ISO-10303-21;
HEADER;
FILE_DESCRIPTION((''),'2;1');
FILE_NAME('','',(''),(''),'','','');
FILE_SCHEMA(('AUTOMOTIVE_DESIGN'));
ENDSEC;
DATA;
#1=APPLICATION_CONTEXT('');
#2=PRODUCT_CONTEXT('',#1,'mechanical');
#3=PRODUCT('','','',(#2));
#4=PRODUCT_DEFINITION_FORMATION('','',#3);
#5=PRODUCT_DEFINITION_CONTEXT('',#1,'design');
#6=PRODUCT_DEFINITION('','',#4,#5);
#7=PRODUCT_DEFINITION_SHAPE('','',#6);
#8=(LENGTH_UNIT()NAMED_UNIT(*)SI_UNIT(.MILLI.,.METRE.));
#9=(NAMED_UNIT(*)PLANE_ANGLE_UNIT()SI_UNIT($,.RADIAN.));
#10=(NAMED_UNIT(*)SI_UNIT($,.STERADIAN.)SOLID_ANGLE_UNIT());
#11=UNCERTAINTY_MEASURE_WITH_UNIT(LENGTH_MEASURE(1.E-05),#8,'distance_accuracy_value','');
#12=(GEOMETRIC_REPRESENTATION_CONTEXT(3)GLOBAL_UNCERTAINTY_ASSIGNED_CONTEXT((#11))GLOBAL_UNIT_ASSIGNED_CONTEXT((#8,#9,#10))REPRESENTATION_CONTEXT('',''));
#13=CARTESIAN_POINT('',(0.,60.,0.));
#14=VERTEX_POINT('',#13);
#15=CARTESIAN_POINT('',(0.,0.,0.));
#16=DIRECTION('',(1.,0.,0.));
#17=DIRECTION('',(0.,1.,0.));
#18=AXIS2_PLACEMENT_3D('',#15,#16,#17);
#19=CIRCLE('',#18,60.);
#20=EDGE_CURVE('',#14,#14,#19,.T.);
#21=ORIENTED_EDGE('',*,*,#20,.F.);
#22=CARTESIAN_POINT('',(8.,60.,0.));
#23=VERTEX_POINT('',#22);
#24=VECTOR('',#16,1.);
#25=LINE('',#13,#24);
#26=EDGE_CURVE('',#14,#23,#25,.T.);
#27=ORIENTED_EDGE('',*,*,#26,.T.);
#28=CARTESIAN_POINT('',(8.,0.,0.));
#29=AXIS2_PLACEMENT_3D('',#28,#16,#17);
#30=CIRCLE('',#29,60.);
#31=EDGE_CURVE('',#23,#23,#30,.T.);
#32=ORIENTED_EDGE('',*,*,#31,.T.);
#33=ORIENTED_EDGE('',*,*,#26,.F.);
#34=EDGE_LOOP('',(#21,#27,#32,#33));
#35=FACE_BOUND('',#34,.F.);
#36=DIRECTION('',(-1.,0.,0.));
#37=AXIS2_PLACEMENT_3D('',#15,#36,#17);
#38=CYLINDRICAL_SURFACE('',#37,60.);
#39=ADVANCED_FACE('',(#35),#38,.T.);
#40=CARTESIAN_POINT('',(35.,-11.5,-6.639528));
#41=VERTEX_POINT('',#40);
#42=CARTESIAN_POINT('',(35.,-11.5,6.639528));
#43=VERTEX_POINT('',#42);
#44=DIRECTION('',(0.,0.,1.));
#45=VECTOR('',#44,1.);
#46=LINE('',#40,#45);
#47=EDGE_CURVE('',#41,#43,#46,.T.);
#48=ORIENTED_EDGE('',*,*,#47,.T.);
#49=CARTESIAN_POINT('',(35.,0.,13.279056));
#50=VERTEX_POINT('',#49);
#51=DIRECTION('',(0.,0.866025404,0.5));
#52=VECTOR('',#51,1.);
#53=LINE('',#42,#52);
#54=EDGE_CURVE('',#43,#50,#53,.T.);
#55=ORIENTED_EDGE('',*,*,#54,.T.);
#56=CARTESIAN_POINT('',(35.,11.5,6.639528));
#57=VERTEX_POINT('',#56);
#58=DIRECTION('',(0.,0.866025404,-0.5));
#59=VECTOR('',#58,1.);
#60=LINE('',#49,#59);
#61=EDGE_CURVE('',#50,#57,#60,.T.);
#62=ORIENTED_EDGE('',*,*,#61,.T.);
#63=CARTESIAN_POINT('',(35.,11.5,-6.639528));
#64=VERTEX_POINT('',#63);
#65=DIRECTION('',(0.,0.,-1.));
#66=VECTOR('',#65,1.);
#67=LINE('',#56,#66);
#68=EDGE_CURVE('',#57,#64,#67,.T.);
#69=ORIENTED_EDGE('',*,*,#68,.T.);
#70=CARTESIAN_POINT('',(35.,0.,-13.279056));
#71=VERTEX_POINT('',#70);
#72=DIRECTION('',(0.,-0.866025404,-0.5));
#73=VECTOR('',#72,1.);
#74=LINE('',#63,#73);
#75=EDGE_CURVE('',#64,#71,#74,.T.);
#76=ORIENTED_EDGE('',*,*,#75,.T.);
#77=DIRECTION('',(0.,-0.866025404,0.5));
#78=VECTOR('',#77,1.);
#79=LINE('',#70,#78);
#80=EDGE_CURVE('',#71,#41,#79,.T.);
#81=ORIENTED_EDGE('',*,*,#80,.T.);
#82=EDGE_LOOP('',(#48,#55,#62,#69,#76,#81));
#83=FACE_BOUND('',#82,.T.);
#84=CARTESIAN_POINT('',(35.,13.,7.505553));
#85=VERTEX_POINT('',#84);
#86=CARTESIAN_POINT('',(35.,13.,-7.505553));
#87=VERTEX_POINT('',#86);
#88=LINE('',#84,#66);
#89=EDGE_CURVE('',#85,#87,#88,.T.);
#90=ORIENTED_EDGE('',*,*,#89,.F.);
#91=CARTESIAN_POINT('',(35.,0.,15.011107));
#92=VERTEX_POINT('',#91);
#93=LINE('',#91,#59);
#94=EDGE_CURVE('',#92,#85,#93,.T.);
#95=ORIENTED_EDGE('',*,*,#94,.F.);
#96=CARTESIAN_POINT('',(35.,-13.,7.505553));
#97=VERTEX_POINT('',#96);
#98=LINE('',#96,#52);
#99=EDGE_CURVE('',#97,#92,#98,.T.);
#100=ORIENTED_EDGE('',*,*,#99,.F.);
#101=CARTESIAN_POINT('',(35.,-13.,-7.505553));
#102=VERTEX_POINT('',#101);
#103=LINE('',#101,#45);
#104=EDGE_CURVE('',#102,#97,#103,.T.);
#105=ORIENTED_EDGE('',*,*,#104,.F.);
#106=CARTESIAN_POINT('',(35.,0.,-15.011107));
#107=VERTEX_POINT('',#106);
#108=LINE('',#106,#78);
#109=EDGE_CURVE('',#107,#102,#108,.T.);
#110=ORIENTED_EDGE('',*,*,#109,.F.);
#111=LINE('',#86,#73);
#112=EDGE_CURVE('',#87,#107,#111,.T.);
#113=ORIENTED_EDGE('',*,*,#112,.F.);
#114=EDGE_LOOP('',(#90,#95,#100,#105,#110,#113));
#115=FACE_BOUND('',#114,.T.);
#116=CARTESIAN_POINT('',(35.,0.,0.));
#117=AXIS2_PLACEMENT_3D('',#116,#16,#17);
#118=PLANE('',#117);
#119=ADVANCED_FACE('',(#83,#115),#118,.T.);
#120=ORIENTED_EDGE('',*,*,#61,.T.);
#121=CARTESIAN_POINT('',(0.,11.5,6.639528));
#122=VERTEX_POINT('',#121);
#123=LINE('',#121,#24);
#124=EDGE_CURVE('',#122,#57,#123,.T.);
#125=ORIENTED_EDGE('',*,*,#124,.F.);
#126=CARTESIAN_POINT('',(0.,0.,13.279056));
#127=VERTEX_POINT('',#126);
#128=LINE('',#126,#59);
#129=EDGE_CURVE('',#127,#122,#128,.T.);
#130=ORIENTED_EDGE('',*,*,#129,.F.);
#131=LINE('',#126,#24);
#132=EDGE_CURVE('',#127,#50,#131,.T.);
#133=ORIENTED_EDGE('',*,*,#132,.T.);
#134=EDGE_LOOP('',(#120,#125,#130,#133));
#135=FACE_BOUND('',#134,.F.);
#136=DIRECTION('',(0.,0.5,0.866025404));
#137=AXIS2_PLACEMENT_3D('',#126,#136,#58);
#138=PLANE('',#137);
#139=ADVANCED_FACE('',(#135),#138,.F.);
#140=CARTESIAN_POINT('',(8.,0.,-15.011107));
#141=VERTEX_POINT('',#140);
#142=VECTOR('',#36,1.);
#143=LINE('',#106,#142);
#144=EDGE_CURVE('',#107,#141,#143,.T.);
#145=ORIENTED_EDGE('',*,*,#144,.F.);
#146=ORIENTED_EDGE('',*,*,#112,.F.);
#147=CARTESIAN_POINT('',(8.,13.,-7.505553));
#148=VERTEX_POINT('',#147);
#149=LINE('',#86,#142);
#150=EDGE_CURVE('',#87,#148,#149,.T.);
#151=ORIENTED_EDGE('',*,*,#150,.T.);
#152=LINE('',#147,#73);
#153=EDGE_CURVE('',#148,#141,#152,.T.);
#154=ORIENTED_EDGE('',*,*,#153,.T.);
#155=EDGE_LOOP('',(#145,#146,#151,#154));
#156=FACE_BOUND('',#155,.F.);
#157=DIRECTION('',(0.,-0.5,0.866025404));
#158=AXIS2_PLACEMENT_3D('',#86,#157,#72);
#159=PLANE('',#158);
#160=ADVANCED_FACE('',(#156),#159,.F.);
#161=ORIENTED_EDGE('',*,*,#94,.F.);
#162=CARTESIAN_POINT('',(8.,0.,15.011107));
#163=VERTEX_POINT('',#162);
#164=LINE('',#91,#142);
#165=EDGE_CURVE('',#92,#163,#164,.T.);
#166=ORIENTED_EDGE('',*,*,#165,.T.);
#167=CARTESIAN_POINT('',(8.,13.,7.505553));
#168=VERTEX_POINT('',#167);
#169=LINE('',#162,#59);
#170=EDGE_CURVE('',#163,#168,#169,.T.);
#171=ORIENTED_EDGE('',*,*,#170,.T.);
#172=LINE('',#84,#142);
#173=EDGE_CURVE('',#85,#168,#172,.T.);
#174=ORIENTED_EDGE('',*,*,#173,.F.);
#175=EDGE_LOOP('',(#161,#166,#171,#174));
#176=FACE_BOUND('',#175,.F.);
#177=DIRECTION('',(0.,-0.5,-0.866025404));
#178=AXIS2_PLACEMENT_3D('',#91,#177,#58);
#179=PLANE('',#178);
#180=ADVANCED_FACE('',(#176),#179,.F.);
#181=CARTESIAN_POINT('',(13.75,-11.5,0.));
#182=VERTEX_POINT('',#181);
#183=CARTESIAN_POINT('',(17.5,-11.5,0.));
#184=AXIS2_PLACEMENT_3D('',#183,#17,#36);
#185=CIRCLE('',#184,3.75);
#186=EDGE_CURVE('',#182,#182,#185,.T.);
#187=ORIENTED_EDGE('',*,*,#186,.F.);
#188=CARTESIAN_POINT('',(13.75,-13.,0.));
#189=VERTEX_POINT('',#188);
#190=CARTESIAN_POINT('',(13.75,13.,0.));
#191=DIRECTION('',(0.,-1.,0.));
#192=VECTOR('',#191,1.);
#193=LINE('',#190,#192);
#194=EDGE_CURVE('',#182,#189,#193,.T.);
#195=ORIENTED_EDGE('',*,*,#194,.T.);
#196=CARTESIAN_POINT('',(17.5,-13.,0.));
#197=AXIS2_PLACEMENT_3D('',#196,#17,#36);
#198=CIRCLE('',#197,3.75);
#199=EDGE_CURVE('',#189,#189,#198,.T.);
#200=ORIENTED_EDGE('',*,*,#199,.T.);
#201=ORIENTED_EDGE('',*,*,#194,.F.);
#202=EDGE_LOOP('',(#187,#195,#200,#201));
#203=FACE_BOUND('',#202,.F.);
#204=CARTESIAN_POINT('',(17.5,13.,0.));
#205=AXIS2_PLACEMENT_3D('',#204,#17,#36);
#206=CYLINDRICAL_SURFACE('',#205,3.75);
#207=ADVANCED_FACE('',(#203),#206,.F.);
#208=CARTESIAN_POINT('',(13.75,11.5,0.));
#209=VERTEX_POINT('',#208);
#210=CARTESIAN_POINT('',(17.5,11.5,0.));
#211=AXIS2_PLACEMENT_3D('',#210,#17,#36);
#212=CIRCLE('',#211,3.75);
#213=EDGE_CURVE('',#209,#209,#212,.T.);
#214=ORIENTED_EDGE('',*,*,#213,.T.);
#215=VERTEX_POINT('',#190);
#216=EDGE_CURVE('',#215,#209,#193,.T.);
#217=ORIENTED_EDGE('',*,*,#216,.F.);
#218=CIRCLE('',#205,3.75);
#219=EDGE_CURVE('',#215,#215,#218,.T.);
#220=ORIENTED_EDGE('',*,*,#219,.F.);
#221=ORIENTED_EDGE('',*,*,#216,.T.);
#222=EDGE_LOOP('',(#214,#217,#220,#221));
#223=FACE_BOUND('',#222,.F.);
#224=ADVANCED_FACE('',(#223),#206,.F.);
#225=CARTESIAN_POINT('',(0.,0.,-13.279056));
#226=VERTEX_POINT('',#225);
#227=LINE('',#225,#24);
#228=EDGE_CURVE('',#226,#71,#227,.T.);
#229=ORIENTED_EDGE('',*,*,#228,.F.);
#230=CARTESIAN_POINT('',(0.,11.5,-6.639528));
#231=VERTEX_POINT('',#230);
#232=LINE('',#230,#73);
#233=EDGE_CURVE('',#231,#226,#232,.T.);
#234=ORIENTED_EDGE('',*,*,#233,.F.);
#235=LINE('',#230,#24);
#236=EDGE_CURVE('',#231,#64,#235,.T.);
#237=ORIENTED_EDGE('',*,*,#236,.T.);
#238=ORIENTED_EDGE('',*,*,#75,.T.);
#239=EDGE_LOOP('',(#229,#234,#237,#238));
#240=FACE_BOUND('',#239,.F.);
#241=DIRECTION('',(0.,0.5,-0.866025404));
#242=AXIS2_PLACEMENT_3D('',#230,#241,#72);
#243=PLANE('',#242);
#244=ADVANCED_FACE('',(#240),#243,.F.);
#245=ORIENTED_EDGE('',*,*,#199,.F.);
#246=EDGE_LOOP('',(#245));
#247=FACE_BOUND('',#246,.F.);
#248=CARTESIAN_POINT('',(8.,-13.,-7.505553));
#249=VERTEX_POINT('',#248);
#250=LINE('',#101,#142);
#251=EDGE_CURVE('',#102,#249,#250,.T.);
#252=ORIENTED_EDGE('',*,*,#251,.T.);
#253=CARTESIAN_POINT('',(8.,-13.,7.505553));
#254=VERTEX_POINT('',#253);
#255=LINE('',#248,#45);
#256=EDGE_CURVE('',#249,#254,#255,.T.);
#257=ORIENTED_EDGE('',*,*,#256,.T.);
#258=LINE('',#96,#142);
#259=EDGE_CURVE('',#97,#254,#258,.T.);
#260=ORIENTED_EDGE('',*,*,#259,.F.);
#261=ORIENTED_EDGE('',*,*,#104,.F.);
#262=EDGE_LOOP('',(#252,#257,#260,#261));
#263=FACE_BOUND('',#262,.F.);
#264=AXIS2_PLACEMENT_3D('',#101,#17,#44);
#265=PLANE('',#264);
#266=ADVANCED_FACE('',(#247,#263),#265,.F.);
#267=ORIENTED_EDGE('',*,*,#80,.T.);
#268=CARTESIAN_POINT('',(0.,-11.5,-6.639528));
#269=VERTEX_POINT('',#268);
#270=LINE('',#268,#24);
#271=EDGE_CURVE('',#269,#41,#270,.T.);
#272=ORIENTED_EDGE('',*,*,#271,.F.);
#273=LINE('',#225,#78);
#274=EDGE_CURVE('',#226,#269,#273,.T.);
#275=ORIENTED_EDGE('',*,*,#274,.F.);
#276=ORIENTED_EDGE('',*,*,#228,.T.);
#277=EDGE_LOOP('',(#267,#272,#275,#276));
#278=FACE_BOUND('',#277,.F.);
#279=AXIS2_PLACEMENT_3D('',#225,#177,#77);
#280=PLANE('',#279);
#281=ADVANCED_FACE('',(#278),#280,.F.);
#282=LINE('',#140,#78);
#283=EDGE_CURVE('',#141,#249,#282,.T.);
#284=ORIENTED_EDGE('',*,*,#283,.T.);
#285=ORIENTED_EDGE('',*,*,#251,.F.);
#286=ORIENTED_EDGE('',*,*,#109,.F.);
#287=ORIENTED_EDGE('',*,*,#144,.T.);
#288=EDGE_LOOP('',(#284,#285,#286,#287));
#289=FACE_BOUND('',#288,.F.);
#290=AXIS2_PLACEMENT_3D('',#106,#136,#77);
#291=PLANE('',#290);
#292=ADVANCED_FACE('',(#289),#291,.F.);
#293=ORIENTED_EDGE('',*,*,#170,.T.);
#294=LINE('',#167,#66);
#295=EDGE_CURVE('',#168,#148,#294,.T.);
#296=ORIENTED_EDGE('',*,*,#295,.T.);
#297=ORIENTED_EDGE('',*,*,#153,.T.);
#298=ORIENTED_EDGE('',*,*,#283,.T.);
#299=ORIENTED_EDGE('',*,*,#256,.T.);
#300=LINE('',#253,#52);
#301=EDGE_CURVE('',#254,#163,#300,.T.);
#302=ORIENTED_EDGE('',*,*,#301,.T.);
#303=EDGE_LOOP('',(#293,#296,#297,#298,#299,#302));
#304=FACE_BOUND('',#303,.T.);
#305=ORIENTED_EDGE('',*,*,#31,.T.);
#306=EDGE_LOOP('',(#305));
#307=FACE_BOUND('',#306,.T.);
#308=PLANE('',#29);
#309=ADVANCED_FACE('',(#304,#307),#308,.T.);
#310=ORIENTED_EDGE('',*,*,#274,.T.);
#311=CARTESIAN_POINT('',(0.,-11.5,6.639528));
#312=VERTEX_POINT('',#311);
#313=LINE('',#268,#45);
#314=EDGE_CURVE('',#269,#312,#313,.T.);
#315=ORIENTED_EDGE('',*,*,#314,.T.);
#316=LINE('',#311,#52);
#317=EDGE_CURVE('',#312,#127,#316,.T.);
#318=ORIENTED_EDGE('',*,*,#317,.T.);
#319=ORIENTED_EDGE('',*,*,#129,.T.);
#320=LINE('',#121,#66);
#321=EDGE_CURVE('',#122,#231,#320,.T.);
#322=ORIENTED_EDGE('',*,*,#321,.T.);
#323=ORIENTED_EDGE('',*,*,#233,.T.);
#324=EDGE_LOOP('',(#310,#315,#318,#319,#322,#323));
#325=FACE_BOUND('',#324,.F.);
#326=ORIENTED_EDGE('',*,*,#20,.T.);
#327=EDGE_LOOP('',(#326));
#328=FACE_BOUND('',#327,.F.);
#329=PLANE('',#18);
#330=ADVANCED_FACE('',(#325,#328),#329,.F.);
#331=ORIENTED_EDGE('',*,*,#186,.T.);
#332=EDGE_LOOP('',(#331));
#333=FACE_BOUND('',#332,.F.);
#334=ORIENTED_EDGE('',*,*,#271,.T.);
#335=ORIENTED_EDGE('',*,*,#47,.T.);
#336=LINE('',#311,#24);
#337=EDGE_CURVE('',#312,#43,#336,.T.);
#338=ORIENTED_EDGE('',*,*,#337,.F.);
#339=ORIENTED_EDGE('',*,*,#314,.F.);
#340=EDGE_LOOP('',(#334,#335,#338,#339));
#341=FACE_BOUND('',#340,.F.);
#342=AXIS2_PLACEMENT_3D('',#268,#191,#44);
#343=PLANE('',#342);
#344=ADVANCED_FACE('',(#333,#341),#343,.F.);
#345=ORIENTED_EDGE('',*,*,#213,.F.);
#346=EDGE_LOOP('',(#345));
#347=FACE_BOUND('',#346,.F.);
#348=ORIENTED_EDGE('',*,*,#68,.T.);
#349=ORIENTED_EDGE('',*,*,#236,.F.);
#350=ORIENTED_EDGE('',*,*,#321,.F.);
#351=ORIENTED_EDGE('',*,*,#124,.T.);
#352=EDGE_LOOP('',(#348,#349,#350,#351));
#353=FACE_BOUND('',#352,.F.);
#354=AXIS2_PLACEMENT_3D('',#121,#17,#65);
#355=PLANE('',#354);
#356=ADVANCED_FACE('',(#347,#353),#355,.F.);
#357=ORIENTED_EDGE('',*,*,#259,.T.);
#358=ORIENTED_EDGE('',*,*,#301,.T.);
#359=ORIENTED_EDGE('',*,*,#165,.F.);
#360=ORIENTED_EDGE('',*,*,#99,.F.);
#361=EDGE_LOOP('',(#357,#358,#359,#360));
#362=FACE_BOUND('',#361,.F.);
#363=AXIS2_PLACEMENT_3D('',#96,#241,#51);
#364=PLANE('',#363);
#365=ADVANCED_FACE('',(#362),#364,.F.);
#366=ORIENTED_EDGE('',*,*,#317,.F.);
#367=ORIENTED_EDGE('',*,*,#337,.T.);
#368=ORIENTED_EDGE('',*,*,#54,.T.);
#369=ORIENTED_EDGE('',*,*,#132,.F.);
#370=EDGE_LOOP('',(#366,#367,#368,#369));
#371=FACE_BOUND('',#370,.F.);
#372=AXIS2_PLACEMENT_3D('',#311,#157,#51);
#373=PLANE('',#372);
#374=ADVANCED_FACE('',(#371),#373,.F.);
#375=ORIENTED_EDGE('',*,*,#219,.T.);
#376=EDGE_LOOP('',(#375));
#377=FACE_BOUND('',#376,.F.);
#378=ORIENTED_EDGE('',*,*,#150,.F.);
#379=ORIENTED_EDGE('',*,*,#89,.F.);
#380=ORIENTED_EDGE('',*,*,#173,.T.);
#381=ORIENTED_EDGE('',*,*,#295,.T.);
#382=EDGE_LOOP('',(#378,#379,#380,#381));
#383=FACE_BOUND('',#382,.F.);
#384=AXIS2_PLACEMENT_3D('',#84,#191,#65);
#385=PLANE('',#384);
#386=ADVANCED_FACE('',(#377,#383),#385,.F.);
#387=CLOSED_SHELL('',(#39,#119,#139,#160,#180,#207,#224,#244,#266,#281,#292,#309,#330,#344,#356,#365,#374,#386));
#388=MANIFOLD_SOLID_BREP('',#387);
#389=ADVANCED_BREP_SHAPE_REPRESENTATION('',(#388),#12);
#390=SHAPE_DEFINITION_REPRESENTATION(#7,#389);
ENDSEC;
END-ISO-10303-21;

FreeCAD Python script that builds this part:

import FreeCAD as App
import Part
import Sketcher
Q = App.Units.Quantity


def add_polygon(sketch, points):
    """Adds a closed chain of lines whose ends are joined by coincident constraints."""
    first, n = sketch.GeometryCount, len(points)
    for a, b in zip(points, points[1:] + points[:1]):
        sketch.addGeometry(Part.LineSegment(App.Vector(*a, 0), App.Vector(*b, 0)), False)
    for i in range(n):
        sketch.addConstraint(Sketcher.Constraint("Coincident", first + i, 2, first + (i + 1) % n, 1))

doc = App.newDocument("Part")
body = doc.addObject("PartDesign::Body", "Body")

# Sketch on YZ plane
sketch1 = body.newObject("Sketcher::SketchObject", "Sketch")
sketch1.AttachmentSupport = (doc.getObject("YZ_Plane"), [""])
sketch1.MapMode = "FlatFace"
sketch1.addGeometry(Part.Circle(App.Vector(0, 0, 0), App.Vector(0, 0, 1), 60), False)  # 0
add_polygon(sketch1, [(-12, 7), (0, 13), (12, 7), (12, -7), (0, -13), (-12, -7)])  # lines 1-6
sketch1.addConstraint(Sketcher.Constraint("Vertical", 3))
sketch1.addConstraint(Sketcher.Constraint("Vertical", 6))
sketch1.addConstraint(Sketcher.Constraint("Coincident", 0, 3, -1, 1))
sketch1.addConstraint(Sketcher.Constraint("Symmetric", 1, 2, 4, 2, -1, 1))
sketch1.addConstraint(Sketcher.Constraint("Symmetric", 2, 2, 5, 2, -1, 1))
sketch1.addConstraint(Sketcher.Constraint("PointOnObject", 1, 2, -2))
sketch1.addConstraint(Sketcher.Constraint("Parallel", 1, 4))
sketch1.addConstraint(Sketcher.Constraint("Horizontal", 3, 2, 5, 2))
sketch1.addConstraint(Sketcher.Constraint("Diameter", 0, Q("120 mm")))
sketch1.addConstraint(Sketcher.Constraint("Angle", 1, Q("30 deg")))
sketch1.addConstraint(Sketcher.Constraint("DistanceX", 5, 2, 3, 2, Q("23 mm")))
sketch1.addConstraint(Sketcher.Constraint("DistanceY", 3, 2, 3, 1, Q("13.279056 mm")))
pad1 = body.newObject("PartDesign::Pad", "Pad")
pad1.Profile = sketch1
pad1.Length = 35

# Sketch on YZ plane
sketch2 = body.newObject("Sketcher::SketchObject", "Sketch001")
sketch2.AttachmentSupport = (doc.getObject("YZ_Plane"), [""])
sketch2.MapMode = "FlatFace"
sketch2.AttachmentOffset = App.Placement(App.Vector(0, 0, 35), App.Rotation())
sketch2.addGeometry(Part.Circle(App.Vector(0, 0, 0), App.Vector(0, 0, 1), 60), False)  # 0
add_polygon(sketch2, [(-13, 8), (0, 15), (13, 8), (13, -8), (0, -15), (-13, -8)])  # lines 1-6
sketch2.addConstraint(Sketcher.Constraint("Vertical", 3))
sketch2.addConstraint(Sketcher.Constraint("Vertical", 6))
sketch2.addConstraint(Sketcher.Constraint("Coincident", 0, 3, -1, 1))
sketch2.addConstraint(Sketcher.Constraint("Symmetric", 1, 2, 4, 2, -1, 1))
sketch2.addConstraint(Sketcher.Constraint("Symmetric", 2, 2, 5, 2, -1, 1))
sketch2.addConstraint(Sketcher.Constraint("PointOnObject", 1, 2, -2))
sketch2.addConstraint(Sketcher.Constraint("Parallel", 1, 4))
sketch2.addConstraint(Sketcher.Constraint("Horizontal", 3, 2, 5, 2))
sketch2.addConstraint(Sketcher.Constraint("Diameter", 0, Q("120 mm")))
sketch2.addConstraint(Sketcher.Constraint("Angle", 1, Q("30 deg")))
sketch2.addConstraint(Sketcher.Constraint("DistanceX", -1, 1, 2, 2, Q("13 mm")))
sketch2.addConstraint(Sketcher.Constraint("DistanceY", 3, 2, 3, 1, Q("15.011107 mm")))
pocket1 = body.newObject("PartDesign::Pocket", "Pocket")
pocket1.Profile = sketch2
pocket1.Length = 27

# Sketch on XZ plane
sketch3 = body.newObject("Sketcher::SketchObject", "Sketch002")
sketch3.AttachmentSupport = (doc.getObject("XZ_Plane"), [""])
sketch3.MapMode = "FlatFace"
sketch3.AttachmentOffset = App.Placement(App.Vector(0, 0, -13), App.Rotation())
sketch3.addGeometry(Part.Circle(App.Vector(17.5, 0, 0), App.Vector(0, 0, 1), 3.8), False)
sketch3.addConstraint(Sketcher.Constraint("PointOnObject", 0, 3, -1))
sketch3.addConstraint(Sketcher.Constraint("Diameter", 0, Q("7.5 mm")))
sketch3.addConstraint(Sketcher.Constraint("DistanceX", -1, 1, 0, 3, Q("17.5 mm")))
pocket2 = body.newObject("PartDesign::Pocket", "Pocket001")
pocket2.Profile = sketch3
pocket2.Length = 44.75074
pocket2.Reversed = True

doc.recompute()
